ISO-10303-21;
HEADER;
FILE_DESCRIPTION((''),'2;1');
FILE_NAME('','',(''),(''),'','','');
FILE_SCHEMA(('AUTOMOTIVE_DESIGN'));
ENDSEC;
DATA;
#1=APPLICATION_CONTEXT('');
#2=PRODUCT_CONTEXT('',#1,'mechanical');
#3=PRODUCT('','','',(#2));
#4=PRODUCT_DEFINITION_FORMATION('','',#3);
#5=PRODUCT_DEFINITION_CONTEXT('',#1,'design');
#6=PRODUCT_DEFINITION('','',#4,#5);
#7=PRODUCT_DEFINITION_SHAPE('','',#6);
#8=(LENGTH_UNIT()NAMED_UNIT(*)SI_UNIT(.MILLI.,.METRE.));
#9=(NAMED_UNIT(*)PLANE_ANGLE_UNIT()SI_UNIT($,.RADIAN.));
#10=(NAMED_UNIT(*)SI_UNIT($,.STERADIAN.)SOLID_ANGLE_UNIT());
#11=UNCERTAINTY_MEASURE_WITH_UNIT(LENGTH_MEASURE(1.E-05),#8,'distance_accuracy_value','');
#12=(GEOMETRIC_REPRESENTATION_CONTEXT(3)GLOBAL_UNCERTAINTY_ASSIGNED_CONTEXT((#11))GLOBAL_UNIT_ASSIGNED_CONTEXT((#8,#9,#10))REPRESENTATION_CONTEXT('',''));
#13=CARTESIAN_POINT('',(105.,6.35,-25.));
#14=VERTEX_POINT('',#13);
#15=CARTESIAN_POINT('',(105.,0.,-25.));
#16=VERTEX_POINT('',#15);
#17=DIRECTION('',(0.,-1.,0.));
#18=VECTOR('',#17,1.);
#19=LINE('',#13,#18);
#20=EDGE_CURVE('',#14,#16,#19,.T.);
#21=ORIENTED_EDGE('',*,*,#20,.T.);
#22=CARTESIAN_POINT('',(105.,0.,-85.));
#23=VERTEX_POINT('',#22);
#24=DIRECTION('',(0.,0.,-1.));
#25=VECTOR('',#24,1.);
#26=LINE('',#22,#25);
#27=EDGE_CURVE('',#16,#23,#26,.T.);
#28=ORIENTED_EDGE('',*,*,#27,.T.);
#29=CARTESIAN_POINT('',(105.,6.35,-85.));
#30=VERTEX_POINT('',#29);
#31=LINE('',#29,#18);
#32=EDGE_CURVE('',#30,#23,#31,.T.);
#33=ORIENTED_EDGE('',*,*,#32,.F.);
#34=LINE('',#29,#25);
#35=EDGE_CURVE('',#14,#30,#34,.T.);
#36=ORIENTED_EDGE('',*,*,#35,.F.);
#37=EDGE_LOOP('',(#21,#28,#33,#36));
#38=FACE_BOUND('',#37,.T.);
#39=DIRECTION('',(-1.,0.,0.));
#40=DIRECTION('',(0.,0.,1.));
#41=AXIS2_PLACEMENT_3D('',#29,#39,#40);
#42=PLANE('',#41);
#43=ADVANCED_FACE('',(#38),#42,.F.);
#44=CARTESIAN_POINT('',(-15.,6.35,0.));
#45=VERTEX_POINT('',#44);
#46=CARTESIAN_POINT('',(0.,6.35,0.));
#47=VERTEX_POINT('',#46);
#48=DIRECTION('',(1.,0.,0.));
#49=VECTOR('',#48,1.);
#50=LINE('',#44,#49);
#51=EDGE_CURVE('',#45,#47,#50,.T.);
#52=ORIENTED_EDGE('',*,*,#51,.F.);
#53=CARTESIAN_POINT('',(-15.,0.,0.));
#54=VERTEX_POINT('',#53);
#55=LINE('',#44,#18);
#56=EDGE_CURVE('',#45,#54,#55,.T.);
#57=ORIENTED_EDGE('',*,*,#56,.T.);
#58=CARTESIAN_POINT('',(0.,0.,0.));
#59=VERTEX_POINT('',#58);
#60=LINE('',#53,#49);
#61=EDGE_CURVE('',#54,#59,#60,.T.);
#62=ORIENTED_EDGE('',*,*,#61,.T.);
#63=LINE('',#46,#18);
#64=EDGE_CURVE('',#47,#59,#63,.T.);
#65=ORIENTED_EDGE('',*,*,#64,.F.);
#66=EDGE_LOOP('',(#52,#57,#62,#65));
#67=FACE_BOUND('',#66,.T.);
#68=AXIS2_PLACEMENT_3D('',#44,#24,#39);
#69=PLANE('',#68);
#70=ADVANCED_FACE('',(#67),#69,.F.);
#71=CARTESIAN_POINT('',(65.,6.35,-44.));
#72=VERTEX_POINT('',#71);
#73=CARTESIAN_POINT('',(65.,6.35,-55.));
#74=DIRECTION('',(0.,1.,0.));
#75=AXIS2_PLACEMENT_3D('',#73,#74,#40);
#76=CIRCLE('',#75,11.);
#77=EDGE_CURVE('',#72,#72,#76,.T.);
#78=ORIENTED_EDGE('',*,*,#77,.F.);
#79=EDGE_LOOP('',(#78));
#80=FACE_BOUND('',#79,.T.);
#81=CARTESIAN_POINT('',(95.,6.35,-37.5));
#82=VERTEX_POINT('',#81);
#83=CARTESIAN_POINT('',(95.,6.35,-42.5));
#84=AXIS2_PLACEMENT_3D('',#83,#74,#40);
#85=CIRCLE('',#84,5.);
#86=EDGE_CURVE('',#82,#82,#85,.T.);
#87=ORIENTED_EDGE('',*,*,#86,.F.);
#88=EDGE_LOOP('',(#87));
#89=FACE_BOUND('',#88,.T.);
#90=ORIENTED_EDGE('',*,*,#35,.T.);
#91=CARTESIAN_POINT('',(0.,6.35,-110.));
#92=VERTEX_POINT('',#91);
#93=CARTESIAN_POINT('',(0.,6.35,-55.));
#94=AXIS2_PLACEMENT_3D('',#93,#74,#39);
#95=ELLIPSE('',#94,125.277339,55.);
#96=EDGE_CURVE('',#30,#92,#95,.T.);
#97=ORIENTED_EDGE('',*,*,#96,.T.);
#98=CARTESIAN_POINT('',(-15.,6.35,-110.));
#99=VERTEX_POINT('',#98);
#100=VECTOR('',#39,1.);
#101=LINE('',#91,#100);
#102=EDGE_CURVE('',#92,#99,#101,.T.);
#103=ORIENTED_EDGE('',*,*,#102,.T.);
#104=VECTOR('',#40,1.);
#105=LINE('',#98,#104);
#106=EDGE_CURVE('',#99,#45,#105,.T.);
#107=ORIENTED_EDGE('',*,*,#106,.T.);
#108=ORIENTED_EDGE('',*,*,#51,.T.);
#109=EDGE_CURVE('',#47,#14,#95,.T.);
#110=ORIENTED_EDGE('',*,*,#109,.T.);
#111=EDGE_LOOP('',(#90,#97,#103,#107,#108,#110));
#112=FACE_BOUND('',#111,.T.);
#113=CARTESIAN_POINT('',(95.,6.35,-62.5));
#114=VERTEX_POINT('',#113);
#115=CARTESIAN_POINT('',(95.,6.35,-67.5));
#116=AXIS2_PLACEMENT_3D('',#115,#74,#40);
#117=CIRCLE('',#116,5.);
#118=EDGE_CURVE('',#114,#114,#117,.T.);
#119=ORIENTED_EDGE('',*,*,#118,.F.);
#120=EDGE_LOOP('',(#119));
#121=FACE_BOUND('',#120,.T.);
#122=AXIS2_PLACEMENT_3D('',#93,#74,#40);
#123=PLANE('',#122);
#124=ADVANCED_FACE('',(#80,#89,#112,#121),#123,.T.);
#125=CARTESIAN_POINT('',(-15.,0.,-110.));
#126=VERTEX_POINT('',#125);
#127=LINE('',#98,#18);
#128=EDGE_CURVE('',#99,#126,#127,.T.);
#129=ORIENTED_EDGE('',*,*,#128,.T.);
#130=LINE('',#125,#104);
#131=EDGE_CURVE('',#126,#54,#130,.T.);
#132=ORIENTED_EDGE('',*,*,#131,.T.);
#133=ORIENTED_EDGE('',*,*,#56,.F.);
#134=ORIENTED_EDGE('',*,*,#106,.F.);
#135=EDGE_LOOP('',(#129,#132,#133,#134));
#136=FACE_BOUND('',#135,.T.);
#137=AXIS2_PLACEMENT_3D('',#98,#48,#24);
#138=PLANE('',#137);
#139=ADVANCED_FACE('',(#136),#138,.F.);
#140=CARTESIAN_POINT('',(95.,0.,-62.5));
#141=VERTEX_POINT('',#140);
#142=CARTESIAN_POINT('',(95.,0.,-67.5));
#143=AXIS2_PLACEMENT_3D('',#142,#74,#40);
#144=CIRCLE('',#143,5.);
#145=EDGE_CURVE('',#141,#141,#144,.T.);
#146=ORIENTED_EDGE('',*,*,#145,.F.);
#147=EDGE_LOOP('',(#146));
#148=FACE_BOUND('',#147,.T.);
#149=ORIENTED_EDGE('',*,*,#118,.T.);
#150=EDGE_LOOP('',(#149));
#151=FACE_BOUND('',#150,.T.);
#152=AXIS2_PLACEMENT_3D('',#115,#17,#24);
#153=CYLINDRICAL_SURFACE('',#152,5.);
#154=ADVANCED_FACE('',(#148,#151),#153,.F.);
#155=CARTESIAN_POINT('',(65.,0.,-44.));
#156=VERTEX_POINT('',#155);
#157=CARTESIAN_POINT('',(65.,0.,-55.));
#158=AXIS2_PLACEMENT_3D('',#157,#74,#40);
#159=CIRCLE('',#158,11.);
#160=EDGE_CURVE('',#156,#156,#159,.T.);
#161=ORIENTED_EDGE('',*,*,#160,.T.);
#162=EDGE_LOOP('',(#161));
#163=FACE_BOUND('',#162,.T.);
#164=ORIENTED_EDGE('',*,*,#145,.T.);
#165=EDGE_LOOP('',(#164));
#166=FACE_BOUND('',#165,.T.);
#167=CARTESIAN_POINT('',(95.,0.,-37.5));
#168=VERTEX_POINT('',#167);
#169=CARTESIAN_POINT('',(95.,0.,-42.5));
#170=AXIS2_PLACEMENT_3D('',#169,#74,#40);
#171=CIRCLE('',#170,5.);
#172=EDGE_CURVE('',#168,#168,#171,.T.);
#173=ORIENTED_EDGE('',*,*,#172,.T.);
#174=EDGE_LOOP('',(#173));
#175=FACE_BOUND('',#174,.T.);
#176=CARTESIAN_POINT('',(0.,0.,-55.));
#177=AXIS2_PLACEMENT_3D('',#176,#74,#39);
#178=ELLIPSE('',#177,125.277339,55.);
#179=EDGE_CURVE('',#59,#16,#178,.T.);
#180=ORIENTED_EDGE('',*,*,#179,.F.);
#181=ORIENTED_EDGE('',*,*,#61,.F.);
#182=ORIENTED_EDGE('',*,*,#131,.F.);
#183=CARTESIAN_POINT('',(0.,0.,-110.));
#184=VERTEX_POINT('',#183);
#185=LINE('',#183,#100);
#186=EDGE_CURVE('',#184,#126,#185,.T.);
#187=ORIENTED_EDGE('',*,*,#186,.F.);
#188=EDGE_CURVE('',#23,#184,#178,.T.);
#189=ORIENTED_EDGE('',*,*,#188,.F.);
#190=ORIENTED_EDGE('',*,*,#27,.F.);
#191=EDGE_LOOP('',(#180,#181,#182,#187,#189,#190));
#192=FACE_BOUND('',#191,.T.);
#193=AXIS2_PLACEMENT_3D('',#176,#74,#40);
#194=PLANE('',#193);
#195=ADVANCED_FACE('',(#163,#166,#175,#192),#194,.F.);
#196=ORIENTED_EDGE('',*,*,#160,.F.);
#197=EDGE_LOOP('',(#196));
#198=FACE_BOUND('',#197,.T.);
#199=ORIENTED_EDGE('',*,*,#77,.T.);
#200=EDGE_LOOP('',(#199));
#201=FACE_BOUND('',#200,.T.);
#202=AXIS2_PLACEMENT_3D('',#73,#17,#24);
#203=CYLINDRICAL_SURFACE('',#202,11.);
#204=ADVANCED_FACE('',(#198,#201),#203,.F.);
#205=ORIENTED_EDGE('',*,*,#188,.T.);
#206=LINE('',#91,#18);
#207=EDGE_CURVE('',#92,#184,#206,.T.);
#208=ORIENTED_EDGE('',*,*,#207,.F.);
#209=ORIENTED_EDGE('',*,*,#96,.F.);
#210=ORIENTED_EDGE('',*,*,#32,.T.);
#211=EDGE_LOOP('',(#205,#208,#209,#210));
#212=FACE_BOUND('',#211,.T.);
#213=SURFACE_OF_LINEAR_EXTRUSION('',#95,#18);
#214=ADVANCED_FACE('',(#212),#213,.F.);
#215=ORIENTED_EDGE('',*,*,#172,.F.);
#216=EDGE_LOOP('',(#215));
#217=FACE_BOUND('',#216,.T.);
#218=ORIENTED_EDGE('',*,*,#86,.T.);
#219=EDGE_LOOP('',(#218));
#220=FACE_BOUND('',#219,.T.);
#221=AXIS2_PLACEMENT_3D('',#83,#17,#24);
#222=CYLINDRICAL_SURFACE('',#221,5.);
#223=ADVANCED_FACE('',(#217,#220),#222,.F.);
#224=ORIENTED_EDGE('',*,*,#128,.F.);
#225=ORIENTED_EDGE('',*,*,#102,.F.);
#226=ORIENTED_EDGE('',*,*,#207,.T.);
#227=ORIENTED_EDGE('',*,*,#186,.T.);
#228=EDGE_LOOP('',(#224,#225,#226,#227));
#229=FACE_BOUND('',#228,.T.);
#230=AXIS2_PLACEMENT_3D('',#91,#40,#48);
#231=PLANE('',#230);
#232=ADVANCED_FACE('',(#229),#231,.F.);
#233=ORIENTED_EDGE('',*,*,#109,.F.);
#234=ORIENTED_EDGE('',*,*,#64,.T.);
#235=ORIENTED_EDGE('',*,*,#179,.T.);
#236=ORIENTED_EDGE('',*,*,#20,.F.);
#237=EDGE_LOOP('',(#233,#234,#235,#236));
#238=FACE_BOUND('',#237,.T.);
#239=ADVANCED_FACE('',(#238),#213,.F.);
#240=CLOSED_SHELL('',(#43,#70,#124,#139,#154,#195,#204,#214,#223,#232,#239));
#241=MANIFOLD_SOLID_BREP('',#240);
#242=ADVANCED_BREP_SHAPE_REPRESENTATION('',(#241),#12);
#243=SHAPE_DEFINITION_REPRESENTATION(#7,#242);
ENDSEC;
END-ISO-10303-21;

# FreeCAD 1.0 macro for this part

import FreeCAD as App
import Part
import Sketcher

V = App.Vector

doc = App.newDocument("Part")
body = doc.addObject("PartDesign::Body", "Body")

# Sketch on XZ plane
sketch1 = doc.addObject("Sketcher::SketchObject", "Sketch")
body.addObject(sketch1)
sketch1.AttachmentSupport = (doc.XZ_Plane, [""])
sketch1.MapMode = "FlatFace"
sketch1.addGeometry([
    Part.LineSegment(V(0, -110, 0), V(0, 0, 0)),
    Part.BSplineCurve([V(0, 0, 0), V(67.941176, 0, 0), V(105, -25, 0)], [3, 3], [1.570796327, 2.564661308], False, 2, [1, 0.879049073, 1], False),
    Part.LineSegment(V(105, -25, 0), V(105, -85, 0)),
    Part.BSplineCurve([V(105, -85, 0), V(67.941176, -110, 0), V(0, -110, 0)], [3, 3], [3.718523999, 4.71238898], False, 2, [1, 0.879049073, 1], False),
], False)
sketch1.addConstraint([
    Sketcher.Constraint("Block", 1),
    Sketcher.Constraint("Block", 3),
    Sketcher.Constraint("Coincident", 0, 2, 1, 1),
    Sketcher.Constraint("Coincident", 1, 2, 2, 1),
    Sketcher.Constraint("Coincident", 2, 2, 3, 1),
    Sketcher.Constraint("Coincident", 3, 2, 0, 1),
])
pad1 = doc.addObject("PartDesign::Pad", "Pad")
body.addObject(pad1)
pad1.Profile = sketch1
pad1.Length = 6.35
pad1.Reversed = True

# Sketch on XZ plane
sketch2 = doc.addObject("Sketcher::SketchObject", "Sketch001")
body.addObject(sketch2)
sketch2.AttachmentSupport = (doc.XZ_Plane, [""])
sketch2.MapMode = "FlatFace"
sketch2.addGeometry([
    Part.Circle(V(95, -67.5, 0), V(0, 0, 1), 5),
    Part.Circle(V(95, -42.5, 0), V(0, 0, 1), 5),
], False)
sketch2.addConstraint([
    Sketcher.Constraint("Equal", 0, 1),
    Sketcher.Constraint("Vertical", 0, 3, 1, 3),
    Sketcher.Constraint("Diameter", 0, 10.0),
    Sketcher.Constraint("DistanceX", -1, 1, 0, 3, 95.0),
    Sketcher.Constraint("DistanceY", 0, 3, 1, 3, 25.0),
    Sketcher.Constraint("DistanceY", 0, 3, -1, 1, 67.5),
])
pocket1 = doc.addObject("PartDesign::Pocket", "Pocket")
body.addObject(pocket1)
pocket1.Profile = sketch2
pocket1.Length = 6.35

# Sketch on XZ plane
sketch3 = doc.addObject("Sketcher::SketchObject", "Sketch002")
body.addObject(sketch3)
sketch3.AttachmentSupport = (doc.XZ_Plane, [""])
sketch3.MapMode = "FlatFace"
sketch3.addGeometry(Part.Circle(V(65, -55, 0), V(0, 0, 1), 11), False)
sketch3.addConstraint([
    Sketcher.Constraint("Diameter", 0, 22.0),
    Sketcher.Constraint("DistanceX", -1, 1, 0, 3, 65.0),
    Sketcher.Constraint("DistanceY", 0, 3, -1, 1, 55.0),
])
pocket2 = doc.addObject("PartDesign::Pocket", "Pocket001")
body.addObject(pocket2)
pocket2.Profile = sketch3
pocket2.Type = "ThroughAll"

# Sketch on XZ plane
sketch4 = doc.addObject("Sketcher::SketchObject", "Sketch003")
body.addObject(sketch4)
sketch4.AttachmentSupport = (doc.XZ_Plane, [""])
sketch4.MapMode = "FlatFace"
sketch4.addGeometry([
    Part.LineSegment(V(-15, -110, 0), V(-15, 0, 0)),
    Part.LineSegment(V(-15, 0, 0), V(0, 0, 0)),
    Part.LineSegment(V(0, 0, 0), V(0, -110, 0)),
    Part.LineSegment(V(0, -110, 0), V(-15, -110, 0)),
], False)
sketch4.addConstraint([
    Sketcher.Constraint("Coincident", 0, 2, 1, 1),
    Sketcher.Constraint("Coincident", 1, 2, 2, 1),
    Sketcher.Constraint("Coincident", 2, 2, 3, 1),
    Sketcher.Constraint("Coincident", 3, 2, 0, 1),
    Sketcher.Constraint("Vertical", 0),
    Sketcher.Constraint("Horizontal", 1),
    Sketcher.Constraint("Vertical", 2),
    Sketcher.Constraint("Horizontal", 3),
    Sketcher.Constraint("Coincident", 1, 2, -1, 1),
    Sketcher.Constraint("DistanceX", 1, 1, 1, 2, 15.0),
    Sketcher.Constraint("DistanceY", 0, 1, 0, 2, 110.0),
])
pad2 = doc.addObject("PartDesign::Pad", "Pad001")
body.addObject(pad2)
pad2.Profile = sketch4
pad2.Length = 6.35
pad2.Reversed = True

doc.recompute()
